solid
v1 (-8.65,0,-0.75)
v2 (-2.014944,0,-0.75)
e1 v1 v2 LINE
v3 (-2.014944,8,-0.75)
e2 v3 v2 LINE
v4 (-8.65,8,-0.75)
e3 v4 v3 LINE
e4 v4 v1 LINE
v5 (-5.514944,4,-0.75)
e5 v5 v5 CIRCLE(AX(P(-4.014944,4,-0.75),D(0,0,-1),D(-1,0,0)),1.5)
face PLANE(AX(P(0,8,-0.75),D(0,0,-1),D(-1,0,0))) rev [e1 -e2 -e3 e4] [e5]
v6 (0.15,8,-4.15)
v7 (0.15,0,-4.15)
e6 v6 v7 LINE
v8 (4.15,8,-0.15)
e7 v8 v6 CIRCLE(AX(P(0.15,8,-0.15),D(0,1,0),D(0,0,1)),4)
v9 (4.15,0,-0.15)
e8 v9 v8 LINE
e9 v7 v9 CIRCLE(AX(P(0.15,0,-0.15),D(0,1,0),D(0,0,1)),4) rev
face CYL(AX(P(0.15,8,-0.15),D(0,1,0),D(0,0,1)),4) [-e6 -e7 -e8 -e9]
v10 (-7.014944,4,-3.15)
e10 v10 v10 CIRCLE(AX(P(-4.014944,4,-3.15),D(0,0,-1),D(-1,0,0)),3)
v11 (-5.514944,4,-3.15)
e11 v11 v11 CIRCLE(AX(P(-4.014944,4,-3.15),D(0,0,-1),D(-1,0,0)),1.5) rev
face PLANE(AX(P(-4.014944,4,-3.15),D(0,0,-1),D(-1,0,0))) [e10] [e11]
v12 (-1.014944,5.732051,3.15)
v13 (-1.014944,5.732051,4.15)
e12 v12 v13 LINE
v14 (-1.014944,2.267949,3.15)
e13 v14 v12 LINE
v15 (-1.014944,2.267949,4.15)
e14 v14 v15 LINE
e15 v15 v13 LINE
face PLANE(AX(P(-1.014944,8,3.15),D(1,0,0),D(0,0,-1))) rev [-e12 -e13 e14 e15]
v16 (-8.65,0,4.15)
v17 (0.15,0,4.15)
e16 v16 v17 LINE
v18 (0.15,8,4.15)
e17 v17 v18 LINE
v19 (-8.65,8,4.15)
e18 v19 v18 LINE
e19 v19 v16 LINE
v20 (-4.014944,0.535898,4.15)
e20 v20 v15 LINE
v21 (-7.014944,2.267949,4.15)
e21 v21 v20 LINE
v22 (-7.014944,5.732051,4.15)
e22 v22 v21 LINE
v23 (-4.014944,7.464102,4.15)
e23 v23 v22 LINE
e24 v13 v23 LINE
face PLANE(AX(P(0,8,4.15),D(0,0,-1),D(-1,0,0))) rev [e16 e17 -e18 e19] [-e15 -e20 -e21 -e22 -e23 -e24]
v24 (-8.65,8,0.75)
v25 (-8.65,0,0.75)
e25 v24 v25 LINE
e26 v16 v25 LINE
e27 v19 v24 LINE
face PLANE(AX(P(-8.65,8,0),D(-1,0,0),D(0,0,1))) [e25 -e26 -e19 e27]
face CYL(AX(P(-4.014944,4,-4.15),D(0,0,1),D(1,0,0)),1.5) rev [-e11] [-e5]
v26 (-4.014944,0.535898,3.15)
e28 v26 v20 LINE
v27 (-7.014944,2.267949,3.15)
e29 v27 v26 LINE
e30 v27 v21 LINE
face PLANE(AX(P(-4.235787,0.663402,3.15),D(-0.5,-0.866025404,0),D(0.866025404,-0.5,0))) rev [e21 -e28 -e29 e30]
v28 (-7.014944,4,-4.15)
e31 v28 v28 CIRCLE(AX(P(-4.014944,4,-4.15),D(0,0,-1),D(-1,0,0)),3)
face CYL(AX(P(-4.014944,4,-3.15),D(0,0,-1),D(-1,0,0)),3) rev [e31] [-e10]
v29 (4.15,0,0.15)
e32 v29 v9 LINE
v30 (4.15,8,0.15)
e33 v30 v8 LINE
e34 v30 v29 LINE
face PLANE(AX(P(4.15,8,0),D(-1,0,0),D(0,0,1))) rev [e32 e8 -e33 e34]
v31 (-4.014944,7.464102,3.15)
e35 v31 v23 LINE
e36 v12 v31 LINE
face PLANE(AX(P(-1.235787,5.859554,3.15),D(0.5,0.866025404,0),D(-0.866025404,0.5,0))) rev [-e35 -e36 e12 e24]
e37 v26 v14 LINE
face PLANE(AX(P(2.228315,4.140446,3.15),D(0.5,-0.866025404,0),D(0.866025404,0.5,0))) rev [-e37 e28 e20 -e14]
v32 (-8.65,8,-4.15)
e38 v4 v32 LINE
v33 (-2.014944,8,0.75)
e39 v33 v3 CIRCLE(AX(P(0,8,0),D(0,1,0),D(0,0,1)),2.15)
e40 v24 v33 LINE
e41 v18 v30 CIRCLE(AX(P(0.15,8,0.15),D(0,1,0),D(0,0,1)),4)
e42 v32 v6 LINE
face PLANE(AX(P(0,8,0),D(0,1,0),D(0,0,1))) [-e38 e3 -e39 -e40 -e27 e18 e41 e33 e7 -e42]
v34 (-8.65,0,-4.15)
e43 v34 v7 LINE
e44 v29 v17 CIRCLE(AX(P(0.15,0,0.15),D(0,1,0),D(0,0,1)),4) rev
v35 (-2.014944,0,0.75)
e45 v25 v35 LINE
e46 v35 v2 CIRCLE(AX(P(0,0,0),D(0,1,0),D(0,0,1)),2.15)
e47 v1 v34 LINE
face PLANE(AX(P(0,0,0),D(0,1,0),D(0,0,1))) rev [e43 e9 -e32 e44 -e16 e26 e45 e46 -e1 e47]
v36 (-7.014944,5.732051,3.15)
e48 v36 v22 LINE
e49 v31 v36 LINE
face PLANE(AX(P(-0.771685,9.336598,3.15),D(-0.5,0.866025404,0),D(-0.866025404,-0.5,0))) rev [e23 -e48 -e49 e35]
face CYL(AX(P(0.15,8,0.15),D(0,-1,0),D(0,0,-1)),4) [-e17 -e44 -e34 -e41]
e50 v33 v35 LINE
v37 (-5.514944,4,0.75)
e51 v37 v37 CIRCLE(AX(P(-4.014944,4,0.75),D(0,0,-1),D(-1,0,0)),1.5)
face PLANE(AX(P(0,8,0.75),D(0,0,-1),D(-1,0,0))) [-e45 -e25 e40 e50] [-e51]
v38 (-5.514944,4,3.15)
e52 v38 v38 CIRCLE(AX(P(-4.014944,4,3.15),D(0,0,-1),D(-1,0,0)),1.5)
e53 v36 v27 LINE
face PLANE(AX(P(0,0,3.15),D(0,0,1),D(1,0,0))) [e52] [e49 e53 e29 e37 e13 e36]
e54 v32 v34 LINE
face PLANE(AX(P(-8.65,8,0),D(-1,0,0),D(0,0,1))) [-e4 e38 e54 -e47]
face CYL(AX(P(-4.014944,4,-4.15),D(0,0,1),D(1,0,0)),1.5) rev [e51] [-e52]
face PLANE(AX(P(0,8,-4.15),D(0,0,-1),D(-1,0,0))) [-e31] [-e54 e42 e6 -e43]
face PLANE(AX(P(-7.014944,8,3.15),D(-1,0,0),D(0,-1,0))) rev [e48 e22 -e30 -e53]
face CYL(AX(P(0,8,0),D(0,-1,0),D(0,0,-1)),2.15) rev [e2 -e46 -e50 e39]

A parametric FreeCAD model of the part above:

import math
import FreeCAD as App
import Part
import Sketcher

V = App.Vector
Q = App.Units.Quantity


def edges_at(feature, points):
    """Names of the edges that pass closest to the given points."""
    edges = feature.Shape.Edges
    near = lambda p: min(range(len(edges)), key=lambda i: edges[i].distToShape(Part.Vertex(*p))[0])
    return sorted({f"Edge{near(p) + 1}" for p in points})

doc = App.newDocument("Part")
body = doc.addObject("PartDesign::Body", "Body")

# Sketch on XZ plane
sketch1 = body.newObject("Sketcher::SketchObject", "Sketch")
sketch1.AttachmentSupport = (doc.getObject("XZ_Plane"), [""])
sketch1.MapMode = "FlatFace"
sketch1.addGeometry(Part.LineSegment(V(-8.7, 0.8, 0), V(-8.7, 4.2, 0)), False)
sketch1.addGeometry(Part.LineSegment(V(-8.7, 4.2, 0), V(4.2, 4.2, 0)), False)
sketch1.addGeometry(Part.LineSegment(V(4.2, 4.2, 0), V(4.2, -4.2, 0)), False)
sketch1.addGeometry(Part.LineSegment(V(4.2, -4.2, 0), V(-8.7, -4.2, 0)), False)
sketch1.addGeometry(Part.LineSegment(V(-8.7, -4.2, 0), V(-8.7, -0.8, 0)), False)
sketch1.addGeometry(Part.LineSegment(V(-8.7, -0.8, 0), V(-2, -0.8, 0)), False)
sketch1.addGeometry(Part.ArcOfCircle(Part.Circle(V(0, 0, 0), V(0, 0, 1), 2.1), math.radians(-160), math.radians(0)), False)
sketch1.addGeometry(Part.ArcOfCircle(Part.Circle(V(0, 0, 0), V(0, 0, 1), 2.1), math.radians(0), math.radians(160)), False)
sketch1.addGeometry(Part.LineSegment(V(-2, 0.8, 0), V(-8.7, 0.8, 0)), False)
sketch1.addConstraint(Sketcher.Constraint("Coincident", 0, 2, 1, 1))
sketch1.addConstraint(Sketcher.Constraint("Coincident", 1, 2, 2, 1))
sketch1.addConstraint(Sketcher.Constraint("Coincident", 2, 2, 3, 1))
sketch1.addConstraint(Sketcher.Constraint("Coincident", 3, 2, 4, 1))
sketch1.addConstraint(Sketcher.Constraint("Coincident", 4, 2, 5, 1))
sketch1.addConstraint(Sketcher.Constraint("Coincident", 5, 2, 6, 1))
sketch1.addConstraint(Sketcher.Constraint("Tangent", 6, 2, 7, 1))
sketch1.addConstraint(Sketcher.Constraint("Coincident", 7, 2, 8, 1))
sketch1.addConstraint(Sketcher.Constraint("Coincident", 8, 2, 0, 1))
sketch1.addConstraint(Sketcher.Constraint("Vertical", 0))
sketch1.addConstraint(Sketcher.Constraint("Horizontal", 1))
sketch1.addConstraint(Sketcher.Constraint("Vertical", 2))
sketch1.addConstraint(Sketcher.Constraint("Horizontal", 3))
sketch1.addConstraint(Sketcher.Constraint("Vertical", 4))
sketch1.addConstraint(Sketcher.Constraint("Horizontal", 5))
sketch1.addConstraint(Sketcher.Constraint("Horizontal", 8))
sketch1.addConstraint(Sketcher.Constraint("Coincident", 6, 3, -1, 1))
sketch1.addConstraint(Sketcher.Constraint("Equal", 6, 7))
sketch1.addConstraint(Sketcher.Constraint("Symmetric", 0, 2, 3, 2, -1))
sketch1.addConstraint(Sketcher.Constraint("PointOnObject", 6, 2, -1))
sketch1.addConstraint(Sketcher.Constraint("Vertical", 5, 2, 7, 2))
sketch1.addConstraint(Sketcher.Constraint("Radius", 6, 2.15))
sketch1.addConstraint(Sketcher.Constraint("DistanceX", 1, 1, 1, 2, 12.8))
sketch1.addConstraint(Sketcher.Constraint("DistanceY", 0, 1, 0, 2, 3.4))
sketch1.addConstraint(Sketcher.Constraint("DistanceY", 2, 2, 2, 1, 8.3))
sketch1.addConstraint(Sketcher.Constraint("DistanceX", 6, 2, 1, 2, 2.0))
pad1 = body.newObject("PartDesign::Pad", "Pad")
pad1.Profile = sketch1
pad1.Length = 8
pad1.Reversed = True

# Sketch on XY plane
sketch2 = body.newObject("Sketcher::SketchObject", "Sketch001")
sketch2.AttachmentSupport = (doc.getObject("XY_Plane"), [""])
sketch2.MapMode = "FlatFace"
sketch2.AttachmentOffset = App.Placement(V(0, 0, -0.75), App.Rotation())
sketch2.addGeometry(Part.Circle(V(-4, 4, 0), V(0, 0, 1), 1.5), False)
sketch2.addConstraint(Sketcher.Constraint("Diameter", 0, 3.0))
sketch2.addConstraint(Sketcher.Constraint("DistanceY", -1, 1, 0, 3, 4.0))
sketch2.addConstraint(Sketcher.Constraint("DistanceX", 0, 3, -1, 1, 4.014944))
pocket1 = body.newObject("PartDesign::Pocket", "Pocket")
pocket1.Profile = sketch2
pocket1.Type = "ThroughAll"
pocket1.Midplane = True

# Sketch on XY plane
sketch3 = body.newObject("Sketcher::SketchObject", "Sketch002")
sketch3.AttachmentSupport = (doc.getObject("XY_Plane"), [""])
sketch3.MapMode = "FlatFace"
sketch3.AttachmentOffset = App.Placement(V(0, 0, 4.15), App.Rotation())
sketch3.addGeometry(Part.LineSegment(V(-4, 7.5, 0), V(-7, 5.7, 0)), False)
sketch3.addGeometry(Part.LineSegment(V(-7, 5.7, 0), V(-7, 2.3, 0)), False)
sketch3.addGeometry(Part.LineSegment(V(-7, 2.3, 0), V(-4, 0.5, 0)), False)
sketch3.addGeometry(Part.LineSegment(V(-4, 0.5, 0), V(-1, 2.3, 0)), False)
sketch3.addGeometry(Part.LineSegment(V(-1, 2.3, 0), V(-1, 5.7, 0)), False)
sketch3.addGeometry(Part.LineSegment(V(-1, 5.7, 0), V(-4, 7.5, 0)), False)
sketch3.addGeometry(Part.Circle(V(-4, 4, 0), V(0, 0, 1), 1.5), False)
sketch3.addConstraint(Sketcher.Constraint("Coincident", 0, 2, 1, 1))
sketch3.addConstraint(Sketcher.Constraint("Coincident", 1, 2, 2, 1))
sketch3.addConstraint(Sketcher.Constraint("Coincident", 2, 2, 3, 1))
sketch3.addConstraint(Sketcher.Constraint("Coincident", 3, 2, 4, 1))
sketch3.addConstraint(Sketcher.Constraint("Coincident", 4, 2, 5, 1))
sketch3.addConstraint(Sketcher.Constraint("Coincident", 5, 2, 0, 1))
sketch3.addConstraint(Sketcher.Constraint("Vertical", 1))
sketch3.addConstraint(Sketcher.Constraint("Vertical", 4))
sketch3.addConstraint(Sketcher.Constraint("Parallel", 0, 3))
sketch3.addConstraint(Sketcher.Constraint("Parallel", 2, 5))
sketch3.addConstraint(Sketcher.Constraint("Horizontal", 1, 2, 3, 2))
sketch3.addConstraint(Sketcher.Constraint("Horizontal", 0, 2, 4, 2))
sketch3.addConstraint(Sketcher.Constraint("Vertical", 6, 3, 2, 2))
sketch3.addConstraint(Sketcher.Constraint("Vertical", 2, 2, 5, 2))
sketch3.addConstraint(Sketcher.Constraint("Diameter", 6, 3.0))
sketch3.addConstraint(Sketcher.Constraint("Angle", 0, Q("-150 deg")))
sketch3.addConstraint(Sketcher.Constraint("DistanceY", -1, 1, 6, 3, 4.0))
sketch3.addConstraint(Sketcher.Constraint("DistanceX", 0, 2, 6, 3, 3.0))
sketch3.addConstraint(Sketcher.Constraint("DistanceY", 1, 2, 1, 1, 3.464102))
sketch3.addConstraint(Sketcher.Constraint("DistanceY", -1, 1, 2, 2, 0.535898))
sketch3.addConstraint(Sketcher.Constraint("DistanceX", 6, 3, -1, 1, 4.014944))
pocket2 = body.newObject("PartDesign::Pocket", "Pocket001")
pocket2.Profile = sketch3
pocket2.Length = 1

# Sketch on XY plane
sketch4 = body.newObject("Sketcher::SketchObject", "Sketch003")
sketch4.AttachmentSupport = (doc.getObject("XY_Plane"), [""])
sketch4.MapMode = "FlatFace"
sketch4.AttachmentOffset = App.Placement(V(0, 0, -4.15), App.Rotation())
sketch4.addGeometry(Part.Circle(V(-4, 4, 0), V(0, 0, 1), 3), False)
sketch4.addConstraint(Sketcher.Constraint("Diameter", 0, 6.0))
sketch4.addConstraint(Sketcher.Constraint("DistanceY", -1, 1, 0, 3, 4.0))
sketch4.addConstraint(Sketcher.Constraint("DistanceX", 0, 3, -1, 1, 4.014944))
pocket3 = body.newObject("PartDesign::Pocket", "Pocket002")
pocket3.Profile = sketch4
pocket3.Length = 1
pocket3.Reversed = True
doc.recompute()

fillet = body.newObject("PartDesign::Fillet", "Fillet")
fillet.Base = (pocket3, edges_at(pocket3, [(4.15, 4, -4.15), (4.15, 4, 4.15)]))
fillet.Radius = 4

doc.recompute()
